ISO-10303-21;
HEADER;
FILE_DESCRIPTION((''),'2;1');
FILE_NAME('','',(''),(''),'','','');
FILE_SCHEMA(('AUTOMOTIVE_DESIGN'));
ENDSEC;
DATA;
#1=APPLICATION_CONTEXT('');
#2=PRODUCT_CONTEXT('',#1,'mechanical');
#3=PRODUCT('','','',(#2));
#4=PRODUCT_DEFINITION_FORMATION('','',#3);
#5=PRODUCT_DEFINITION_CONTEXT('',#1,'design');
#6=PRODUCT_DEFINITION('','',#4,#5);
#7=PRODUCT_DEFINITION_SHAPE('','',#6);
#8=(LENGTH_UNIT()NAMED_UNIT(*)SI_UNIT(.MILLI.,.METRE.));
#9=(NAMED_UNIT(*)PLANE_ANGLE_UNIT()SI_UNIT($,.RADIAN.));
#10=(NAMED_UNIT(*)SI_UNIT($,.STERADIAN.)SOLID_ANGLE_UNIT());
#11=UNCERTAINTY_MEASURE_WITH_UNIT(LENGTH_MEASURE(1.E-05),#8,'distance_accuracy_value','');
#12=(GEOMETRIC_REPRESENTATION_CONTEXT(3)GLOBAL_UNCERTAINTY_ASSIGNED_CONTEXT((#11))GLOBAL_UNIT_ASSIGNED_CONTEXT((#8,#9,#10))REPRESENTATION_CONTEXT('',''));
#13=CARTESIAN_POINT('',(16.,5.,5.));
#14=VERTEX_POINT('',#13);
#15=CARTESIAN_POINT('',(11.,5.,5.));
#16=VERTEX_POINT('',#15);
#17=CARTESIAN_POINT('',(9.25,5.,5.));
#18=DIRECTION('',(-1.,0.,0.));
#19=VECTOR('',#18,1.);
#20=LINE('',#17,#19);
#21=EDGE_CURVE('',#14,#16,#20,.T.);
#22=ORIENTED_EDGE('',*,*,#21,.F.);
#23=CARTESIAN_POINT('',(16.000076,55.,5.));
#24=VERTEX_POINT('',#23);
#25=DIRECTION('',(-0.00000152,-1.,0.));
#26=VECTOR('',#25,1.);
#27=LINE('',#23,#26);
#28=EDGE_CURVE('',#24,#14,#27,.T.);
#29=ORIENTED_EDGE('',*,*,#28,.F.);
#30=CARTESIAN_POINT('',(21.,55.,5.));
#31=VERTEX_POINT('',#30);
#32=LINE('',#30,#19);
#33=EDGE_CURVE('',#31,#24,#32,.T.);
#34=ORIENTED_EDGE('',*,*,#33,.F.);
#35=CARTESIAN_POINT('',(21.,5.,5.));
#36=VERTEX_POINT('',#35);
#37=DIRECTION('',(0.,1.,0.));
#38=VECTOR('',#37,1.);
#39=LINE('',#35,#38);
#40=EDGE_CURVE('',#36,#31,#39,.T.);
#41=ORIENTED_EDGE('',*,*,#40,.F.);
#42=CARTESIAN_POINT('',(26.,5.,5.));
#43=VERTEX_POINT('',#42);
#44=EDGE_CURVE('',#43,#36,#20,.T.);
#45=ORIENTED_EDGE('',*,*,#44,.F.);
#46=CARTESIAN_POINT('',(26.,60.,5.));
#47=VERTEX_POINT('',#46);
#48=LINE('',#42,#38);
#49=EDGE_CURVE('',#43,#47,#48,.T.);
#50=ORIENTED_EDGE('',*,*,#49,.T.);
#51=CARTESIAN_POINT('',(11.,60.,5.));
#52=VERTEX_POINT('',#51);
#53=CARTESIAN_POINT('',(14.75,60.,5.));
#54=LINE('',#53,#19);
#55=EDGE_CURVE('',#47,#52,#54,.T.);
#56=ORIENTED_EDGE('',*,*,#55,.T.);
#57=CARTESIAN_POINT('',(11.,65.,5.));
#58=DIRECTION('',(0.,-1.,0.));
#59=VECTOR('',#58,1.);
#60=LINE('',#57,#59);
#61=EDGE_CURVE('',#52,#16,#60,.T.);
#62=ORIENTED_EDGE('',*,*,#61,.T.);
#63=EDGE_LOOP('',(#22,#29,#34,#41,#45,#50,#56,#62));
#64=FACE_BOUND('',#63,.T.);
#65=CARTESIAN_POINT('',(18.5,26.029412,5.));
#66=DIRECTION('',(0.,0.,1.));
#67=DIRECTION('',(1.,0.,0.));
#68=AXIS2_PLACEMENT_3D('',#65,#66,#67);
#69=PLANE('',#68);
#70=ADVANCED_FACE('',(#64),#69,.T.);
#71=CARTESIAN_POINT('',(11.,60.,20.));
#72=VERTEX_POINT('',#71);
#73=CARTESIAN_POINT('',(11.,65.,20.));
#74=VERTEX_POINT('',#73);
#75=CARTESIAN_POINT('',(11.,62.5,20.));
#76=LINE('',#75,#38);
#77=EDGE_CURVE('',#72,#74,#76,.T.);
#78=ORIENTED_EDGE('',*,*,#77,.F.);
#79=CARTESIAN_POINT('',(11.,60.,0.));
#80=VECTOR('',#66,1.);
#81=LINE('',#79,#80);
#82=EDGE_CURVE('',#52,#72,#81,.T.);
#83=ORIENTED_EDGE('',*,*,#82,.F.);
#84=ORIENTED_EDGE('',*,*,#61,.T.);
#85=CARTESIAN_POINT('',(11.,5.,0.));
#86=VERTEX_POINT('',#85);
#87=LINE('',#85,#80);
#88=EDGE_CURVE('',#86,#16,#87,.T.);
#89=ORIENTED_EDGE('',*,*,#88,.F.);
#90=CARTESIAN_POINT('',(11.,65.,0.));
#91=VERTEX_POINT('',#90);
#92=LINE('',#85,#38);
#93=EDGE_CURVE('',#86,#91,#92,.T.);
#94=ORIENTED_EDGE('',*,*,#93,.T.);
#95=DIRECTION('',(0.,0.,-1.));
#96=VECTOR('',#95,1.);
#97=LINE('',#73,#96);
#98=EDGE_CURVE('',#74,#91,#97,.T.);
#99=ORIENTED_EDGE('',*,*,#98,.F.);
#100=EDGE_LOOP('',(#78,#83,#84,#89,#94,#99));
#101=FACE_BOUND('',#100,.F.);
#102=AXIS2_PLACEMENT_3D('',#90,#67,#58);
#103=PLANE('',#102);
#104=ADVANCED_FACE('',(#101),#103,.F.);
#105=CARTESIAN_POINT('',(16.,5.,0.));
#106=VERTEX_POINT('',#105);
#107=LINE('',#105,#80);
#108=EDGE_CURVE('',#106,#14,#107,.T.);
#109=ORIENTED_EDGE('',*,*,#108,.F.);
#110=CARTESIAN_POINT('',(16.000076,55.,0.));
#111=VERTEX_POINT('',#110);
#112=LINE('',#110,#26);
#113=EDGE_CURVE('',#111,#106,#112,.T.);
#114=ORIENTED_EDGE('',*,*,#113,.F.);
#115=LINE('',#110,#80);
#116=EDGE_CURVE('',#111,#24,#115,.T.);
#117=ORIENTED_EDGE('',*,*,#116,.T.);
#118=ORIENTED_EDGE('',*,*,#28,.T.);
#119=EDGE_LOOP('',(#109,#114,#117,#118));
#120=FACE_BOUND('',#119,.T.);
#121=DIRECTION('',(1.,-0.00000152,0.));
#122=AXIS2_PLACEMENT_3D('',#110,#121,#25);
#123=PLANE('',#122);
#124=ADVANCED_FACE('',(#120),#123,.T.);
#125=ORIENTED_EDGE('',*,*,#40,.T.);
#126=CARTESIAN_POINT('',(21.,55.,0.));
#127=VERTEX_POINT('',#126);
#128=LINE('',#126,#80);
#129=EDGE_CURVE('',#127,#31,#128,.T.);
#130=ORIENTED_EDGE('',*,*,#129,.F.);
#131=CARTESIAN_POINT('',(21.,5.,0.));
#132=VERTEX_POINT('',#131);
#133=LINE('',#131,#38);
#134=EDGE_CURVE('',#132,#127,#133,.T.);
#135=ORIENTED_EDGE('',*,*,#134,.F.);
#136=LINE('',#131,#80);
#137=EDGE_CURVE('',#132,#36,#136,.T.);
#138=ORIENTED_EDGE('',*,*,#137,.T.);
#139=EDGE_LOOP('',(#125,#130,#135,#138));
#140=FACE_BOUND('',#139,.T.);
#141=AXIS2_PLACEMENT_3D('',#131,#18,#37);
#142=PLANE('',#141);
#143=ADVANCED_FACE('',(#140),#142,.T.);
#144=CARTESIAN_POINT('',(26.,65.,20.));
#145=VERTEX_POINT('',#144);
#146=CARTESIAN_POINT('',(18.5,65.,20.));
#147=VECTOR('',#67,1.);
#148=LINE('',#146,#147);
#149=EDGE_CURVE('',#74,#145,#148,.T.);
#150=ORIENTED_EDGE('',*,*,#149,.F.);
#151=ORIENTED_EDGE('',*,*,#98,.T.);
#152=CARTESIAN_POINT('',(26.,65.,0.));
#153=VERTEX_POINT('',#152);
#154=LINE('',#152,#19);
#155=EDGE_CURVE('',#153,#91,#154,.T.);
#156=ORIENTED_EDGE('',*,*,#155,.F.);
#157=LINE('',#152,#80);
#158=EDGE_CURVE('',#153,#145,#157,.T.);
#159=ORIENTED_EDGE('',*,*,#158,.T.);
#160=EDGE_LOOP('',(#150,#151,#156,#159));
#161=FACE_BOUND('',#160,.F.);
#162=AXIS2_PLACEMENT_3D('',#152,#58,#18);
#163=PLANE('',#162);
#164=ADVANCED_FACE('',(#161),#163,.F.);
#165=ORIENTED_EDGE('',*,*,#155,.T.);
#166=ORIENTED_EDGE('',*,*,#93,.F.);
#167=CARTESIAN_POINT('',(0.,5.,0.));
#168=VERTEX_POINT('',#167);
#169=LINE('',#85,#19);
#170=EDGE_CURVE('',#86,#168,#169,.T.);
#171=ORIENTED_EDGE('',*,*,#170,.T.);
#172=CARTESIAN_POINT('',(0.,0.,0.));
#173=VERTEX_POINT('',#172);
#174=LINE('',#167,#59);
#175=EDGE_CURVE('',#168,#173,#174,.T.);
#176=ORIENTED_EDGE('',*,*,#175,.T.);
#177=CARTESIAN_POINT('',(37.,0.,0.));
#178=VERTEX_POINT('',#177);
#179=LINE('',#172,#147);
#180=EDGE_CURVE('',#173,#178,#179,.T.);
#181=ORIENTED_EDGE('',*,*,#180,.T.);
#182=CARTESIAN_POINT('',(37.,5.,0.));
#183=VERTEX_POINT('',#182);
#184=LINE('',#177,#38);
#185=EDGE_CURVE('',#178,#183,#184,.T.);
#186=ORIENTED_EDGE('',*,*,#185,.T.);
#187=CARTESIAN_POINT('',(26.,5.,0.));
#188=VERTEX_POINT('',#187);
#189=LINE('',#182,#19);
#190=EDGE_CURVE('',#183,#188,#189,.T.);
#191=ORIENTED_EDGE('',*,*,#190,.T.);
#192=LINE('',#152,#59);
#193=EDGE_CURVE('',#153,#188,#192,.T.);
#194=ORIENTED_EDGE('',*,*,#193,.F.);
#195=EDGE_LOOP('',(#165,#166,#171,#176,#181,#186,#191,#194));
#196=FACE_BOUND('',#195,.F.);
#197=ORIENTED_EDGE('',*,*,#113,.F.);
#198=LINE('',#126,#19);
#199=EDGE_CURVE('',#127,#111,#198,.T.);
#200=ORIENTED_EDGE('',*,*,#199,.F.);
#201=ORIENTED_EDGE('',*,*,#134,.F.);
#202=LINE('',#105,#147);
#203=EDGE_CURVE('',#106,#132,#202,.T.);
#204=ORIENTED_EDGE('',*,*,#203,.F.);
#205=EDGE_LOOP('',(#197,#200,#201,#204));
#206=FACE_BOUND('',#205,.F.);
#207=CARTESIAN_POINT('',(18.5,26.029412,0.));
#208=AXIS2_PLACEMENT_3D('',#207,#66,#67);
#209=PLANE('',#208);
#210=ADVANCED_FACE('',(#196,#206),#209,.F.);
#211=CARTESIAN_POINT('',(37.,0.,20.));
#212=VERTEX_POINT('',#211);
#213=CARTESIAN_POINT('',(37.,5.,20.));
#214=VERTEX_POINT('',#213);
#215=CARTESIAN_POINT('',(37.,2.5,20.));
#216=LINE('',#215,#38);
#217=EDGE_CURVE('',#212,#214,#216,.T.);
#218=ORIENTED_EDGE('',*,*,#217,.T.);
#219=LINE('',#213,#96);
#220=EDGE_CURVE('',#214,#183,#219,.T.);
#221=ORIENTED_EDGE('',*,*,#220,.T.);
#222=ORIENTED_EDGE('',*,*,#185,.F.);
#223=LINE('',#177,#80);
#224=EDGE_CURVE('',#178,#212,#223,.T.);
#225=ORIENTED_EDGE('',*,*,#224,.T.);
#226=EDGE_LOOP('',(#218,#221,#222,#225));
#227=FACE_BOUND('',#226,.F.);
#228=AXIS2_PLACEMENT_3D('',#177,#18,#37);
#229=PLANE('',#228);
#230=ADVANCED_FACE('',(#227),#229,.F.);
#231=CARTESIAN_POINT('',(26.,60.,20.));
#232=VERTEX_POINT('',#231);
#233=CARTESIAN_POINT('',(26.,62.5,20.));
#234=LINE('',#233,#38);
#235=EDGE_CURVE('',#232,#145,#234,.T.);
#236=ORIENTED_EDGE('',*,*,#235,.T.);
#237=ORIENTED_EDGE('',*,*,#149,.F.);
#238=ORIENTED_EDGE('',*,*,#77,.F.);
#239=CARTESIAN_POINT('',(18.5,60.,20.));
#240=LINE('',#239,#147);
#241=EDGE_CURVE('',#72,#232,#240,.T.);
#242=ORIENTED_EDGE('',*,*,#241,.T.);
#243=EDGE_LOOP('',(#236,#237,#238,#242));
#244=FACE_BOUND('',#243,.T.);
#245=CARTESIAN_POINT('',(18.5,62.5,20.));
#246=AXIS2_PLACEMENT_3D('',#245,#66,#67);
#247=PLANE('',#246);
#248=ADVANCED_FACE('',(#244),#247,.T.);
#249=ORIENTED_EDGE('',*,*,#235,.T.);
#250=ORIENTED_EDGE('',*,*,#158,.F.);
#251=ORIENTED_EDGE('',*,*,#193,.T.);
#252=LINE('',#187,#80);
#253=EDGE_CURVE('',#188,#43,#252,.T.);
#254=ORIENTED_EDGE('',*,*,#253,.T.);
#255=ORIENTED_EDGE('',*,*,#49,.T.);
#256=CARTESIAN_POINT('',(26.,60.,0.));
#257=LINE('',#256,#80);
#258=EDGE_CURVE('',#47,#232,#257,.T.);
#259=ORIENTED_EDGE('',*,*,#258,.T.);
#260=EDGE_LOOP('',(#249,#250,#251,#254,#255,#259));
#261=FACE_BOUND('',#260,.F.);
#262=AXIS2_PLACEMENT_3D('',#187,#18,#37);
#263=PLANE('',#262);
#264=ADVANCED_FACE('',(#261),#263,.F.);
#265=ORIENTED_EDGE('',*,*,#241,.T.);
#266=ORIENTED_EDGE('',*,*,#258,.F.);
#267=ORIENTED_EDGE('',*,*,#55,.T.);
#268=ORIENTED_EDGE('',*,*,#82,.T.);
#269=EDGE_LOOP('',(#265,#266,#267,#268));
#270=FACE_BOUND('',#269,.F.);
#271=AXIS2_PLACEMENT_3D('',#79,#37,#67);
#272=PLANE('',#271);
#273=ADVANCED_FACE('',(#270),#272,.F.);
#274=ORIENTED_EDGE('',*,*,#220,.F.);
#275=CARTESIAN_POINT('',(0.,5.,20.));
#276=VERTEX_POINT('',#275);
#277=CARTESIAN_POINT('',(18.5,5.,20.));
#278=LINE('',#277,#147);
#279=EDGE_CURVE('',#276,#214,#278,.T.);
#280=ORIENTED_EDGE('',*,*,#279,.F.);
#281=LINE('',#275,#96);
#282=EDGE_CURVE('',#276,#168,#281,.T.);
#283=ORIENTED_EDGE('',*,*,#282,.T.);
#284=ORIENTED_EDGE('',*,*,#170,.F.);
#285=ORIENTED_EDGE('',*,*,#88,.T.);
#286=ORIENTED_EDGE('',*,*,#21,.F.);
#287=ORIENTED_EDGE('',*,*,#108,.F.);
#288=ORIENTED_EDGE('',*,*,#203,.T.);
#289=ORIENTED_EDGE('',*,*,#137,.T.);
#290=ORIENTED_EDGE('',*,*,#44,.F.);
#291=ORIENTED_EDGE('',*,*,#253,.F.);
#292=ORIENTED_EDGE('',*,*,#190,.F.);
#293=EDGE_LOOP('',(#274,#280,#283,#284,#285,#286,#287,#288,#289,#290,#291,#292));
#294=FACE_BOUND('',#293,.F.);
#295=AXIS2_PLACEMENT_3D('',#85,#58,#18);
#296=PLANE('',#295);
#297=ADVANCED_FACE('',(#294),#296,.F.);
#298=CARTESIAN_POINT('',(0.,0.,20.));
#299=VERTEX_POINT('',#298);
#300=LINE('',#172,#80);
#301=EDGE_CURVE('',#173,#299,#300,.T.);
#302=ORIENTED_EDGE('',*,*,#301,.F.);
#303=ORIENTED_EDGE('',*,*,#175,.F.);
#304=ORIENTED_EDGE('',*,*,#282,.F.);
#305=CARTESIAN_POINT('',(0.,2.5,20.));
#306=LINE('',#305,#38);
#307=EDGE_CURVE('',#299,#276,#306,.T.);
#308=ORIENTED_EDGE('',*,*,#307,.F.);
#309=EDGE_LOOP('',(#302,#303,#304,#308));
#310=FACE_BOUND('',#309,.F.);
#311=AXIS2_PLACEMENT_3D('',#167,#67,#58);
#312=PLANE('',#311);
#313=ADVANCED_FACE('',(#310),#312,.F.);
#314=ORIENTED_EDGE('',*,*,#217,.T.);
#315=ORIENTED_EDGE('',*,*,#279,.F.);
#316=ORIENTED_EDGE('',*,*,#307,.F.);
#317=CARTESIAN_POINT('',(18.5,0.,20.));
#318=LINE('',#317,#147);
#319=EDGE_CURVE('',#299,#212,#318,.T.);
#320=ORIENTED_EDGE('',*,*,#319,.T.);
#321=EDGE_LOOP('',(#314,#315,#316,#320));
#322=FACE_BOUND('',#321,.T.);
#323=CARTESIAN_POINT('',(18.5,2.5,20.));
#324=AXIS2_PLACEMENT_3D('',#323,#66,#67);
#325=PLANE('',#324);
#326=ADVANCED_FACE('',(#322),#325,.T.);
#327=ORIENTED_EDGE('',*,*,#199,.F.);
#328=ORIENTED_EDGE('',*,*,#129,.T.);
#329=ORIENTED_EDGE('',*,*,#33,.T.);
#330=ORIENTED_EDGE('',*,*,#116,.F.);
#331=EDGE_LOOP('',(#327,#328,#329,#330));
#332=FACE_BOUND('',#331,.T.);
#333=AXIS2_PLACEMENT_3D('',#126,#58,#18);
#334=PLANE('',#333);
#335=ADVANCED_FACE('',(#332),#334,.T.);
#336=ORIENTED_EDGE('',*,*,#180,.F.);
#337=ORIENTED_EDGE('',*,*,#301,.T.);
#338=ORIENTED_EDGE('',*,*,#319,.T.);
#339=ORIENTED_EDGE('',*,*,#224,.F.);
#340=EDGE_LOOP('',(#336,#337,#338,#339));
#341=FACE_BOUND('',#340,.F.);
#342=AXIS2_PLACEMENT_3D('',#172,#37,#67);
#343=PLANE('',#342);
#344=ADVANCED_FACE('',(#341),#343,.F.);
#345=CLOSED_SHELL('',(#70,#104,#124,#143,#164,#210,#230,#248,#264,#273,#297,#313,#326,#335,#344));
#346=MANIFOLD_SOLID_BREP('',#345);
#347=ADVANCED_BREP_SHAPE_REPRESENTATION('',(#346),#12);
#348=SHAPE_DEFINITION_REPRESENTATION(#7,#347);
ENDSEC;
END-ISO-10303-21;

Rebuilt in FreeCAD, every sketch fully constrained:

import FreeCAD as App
import Part
import Sketcher
Q = App.Units.Quantity


def add_polygon(sketch, points):
    """Adds a closed chain of lines whose ends are joined by coincident constraints."""
    first, n = sketch.GeometryCount, len(points)
    for a, b in zip(points, points[1:] + points[:1]):
        sketch.addGeometry(Part.LineSegment(App.Vector(*a, 0), App.Vector(*b, 0)), False)
    for i in range(n):
        sketch.addConstraint(Sketcher.Constraint("Coincident", first + i, 2, first + (i + 1) % n, 1))

doc = App.newDocument("Part")
body = doc.addObject("PartDesign::Body", "Body")

sketch1 = body.newObject("Sketcher::SketchObject", "Sketch")
sketch1.AttachmentSupport = (doc.getObject("XY_Plane"), [""])
sketch1.MapMode = "FlatFace"
add_polygon(sketch1, [(0, 5), (0, 0), (37, 0), (37, 5), (26, 5), (26, 65), (11, 65), (11, 5)])
add_polygon(sketch1, [(21, 5), (16, 5), (16, 55), (21, 55)])
sketch1.addConstraint([
    Sketcher.Constraint("Vertical", 0),
    Sketcher.Constraint("Horizontal", 1),
    Sketcher.Constraint("Vertical", 2),
    Sketcher.Constraint("Horizontal", 3),
    Sketcher.Constraint("Vertical", 4),
    Sketcher.Constraint("Horizontal", 5),
    Sketcher.Constraint("Vertical", 6),
    Sketcher.Constraint("Horizontal", 7),
    Sketcher.Constraint("Horizontal", 8),
    Sketcher.Constraint("Horizontal", 10),
    Sketcher.Constraint("Vertical", 11),
    Sketcher.Constraint("Coincident", 0, 2, -1, 1),
    Sketcher.Constraint("Horizontal", 3, 2, 6, 2),
    Sketcher.Constraint("Horizontal", 7, 2, 8, 2),
    Sketcher.Constraint("Equal", 3, 7),
    Sketcher.Constraint("Equal", 8, 0),
    Sketcher.Constraint("DistanceX", 1, 1, 1, 2, Q("37 mm")),
    Sketcher.Constraint("DistanceX", 3, 2, 3, 1, Q("11 mm")),
    Sketcher.Constraint("DistanceX", 8, 2, 8, 1, Q("5 mm")),
    Sketcher.Constraint("DistanceY", 4, 1, 4, 2, Q("60 mm")),
    Sketcher.Constraint("DistanceY", 11, 2, 11, 1, Q("50 mm")),
    Sketcher.Constraint("DistanceX", -1, 1, 8, 2, Q("16 mm")),
    Sketcher.Constraint("DistanceX", 10, 1, 10, 2, Q("4.999924 mm")),
])
pad1 = body.newObject("PartDesign::Pad", "Pad")
pad1.Profile = sketch1
pad1.Length = 5

sketch2 = body.newObject("Sketcher::SketchObject", "Sketch001")
sketch2.AttachmentSupport = (doc.getObject("XY_Plane"), [""])
sketch2.MapMode = "FlatFace"
add_polygon(sketch2, [(0, 5), (0, 0), (37, 0), (37, 5)])
add_polygon(sketch2, [(11, 65), (11, 60), (26, 60), (26, 65)])
sketch2.addConstraint([
    Sketcher.Constraint("Vertical", 0),
    Sketcher.Constraint("Horizontal", 1),
    Sketcher.Constraint("Vertical", 2),
    Sketcher.Constraint("Horizontal", 3),
    Sketcher.Constraint("Vertical", 4),
    Sketcher.Constraint("Horizontal", 5),
    Sketcher.Constraint("Vertical", 6),
    Sketcher.Constraint("Horizontal", 7),
    Sketcher.Constraint("Coincident", 0, 2, -1, 1),
    Sketcher.Constraint("Equal", 2, 4),
    Sketcher.Constraint("DistanceX", 1, 1, 1, 2, Q("37 mm")),
    Sketcher.Constraint("DistanceX", 5, 1, 5, 2, Q("15 mm")),
    Sketcher.Constraint("DistanceY", 0, 2, 0, 1, Q("5 mm")),
    Sketcher.Constraint("DistanceX", -1, 1, 4, 2, Q("11 mm")),
    Sketcher.Constraint("DistanceY", -1, 1, 4, 2, Q("60 mm")),
])
pad2 = body.newObject("PartDesign::Pad", "Pad001")
pad2.Profile = sketch2
pad2.Length = 20

doc.recompute()
